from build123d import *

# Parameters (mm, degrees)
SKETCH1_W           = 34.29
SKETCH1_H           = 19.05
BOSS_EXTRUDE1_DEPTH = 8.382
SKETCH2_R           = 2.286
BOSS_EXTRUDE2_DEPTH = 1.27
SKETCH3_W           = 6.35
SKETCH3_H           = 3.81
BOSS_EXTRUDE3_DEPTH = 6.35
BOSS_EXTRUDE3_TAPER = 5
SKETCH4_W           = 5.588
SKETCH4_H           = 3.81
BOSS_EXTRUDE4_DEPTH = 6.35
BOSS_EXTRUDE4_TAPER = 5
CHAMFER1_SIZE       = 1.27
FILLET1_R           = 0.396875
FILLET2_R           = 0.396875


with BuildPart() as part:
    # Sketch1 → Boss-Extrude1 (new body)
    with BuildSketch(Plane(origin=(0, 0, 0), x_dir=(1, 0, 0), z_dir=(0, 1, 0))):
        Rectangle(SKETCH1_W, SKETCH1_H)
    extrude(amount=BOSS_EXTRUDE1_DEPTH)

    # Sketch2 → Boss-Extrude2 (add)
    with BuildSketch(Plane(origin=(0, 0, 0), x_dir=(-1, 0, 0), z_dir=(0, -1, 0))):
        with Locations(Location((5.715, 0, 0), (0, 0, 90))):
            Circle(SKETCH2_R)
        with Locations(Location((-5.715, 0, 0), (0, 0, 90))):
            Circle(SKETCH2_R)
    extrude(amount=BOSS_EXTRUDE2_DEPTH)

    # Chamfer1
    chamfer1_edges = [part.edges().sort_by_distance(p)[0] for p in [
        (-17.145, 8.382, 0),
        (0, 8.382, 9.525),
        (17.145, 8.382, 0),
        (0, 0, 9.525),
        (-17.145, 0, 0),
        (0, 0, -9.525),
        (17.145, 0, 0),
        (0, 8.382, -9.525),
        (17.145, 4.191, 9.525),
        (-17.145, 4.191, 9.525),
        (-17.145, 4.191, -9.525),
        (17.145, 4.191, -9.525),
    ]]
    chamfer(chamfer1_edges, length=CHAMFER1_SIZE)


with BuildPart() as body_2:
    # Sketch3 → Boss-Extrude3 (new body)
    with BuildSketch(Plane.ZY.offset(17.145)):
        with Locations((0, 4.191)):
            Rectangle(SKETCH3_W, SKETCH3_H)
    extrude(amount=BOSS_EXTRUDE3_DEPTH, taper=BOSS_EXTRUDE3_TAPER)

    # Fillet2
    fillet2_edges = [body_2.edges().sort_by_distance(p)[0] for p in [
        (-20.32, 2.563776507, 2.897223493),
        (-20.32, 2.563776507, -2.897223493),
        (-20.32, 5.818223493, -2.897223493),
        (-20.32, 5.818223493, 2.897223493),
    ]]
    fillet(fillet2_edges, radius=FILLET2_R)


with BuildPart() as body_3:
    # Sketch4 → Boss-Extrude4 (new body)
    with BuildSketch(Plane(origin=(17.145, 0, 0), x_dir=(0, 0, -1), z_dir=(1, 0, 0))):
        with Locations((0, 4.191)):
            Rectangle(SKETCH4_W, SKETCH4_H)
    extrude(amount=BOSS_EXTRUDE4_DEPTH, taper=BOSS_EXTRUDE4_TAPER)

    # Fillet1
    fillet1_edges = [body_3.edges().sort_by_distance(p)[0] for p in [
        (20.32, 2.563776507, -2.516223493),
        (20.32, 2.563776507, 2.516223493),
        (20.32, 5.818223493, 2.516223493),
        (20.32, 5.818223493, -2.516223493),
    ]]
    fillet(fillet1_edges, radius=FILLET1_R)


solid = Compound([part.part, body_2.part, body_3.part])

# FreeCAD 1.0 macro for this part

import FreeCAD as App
import Part
import Sketcher

V = App.Vector
Q = App.Units.Quantity


def edges_at(feature, points):
    """Names of the edges that pass closest to the given points."""
    edges = feature.Shape.Edges
    near = lambda p: min(range(len(edges)), key=lambda i: edges[i].distToShape(Part.Vertex(*p))[0])
    return sorted({f"Edge{near(p) + 1}" for p in points})


def add_polygon(sketch, points):
    """Adds a closed chain of lines whose ends are joined by coincident constraints."""
    first, n = sketch.GeometryCount, len(points)
    for a, b in zip(points, points[1:] + points[:1]):
        sketch.addGeometry(Part.LineSegment(App.Vector(*a, 0), App.Vector(*b, 0)), False)
    for i in range(n):
        sketch.addConstraint(Sketcher.Constraint("Coincident", first + i, 2, first + (i + 1) % n, 1))

doc = App.newDocument("Part")
params = doc.addObject("Spreadsheet::Sheet", "Params")
for row, (alias, value) in enumerate([
    ("sketch1_width", "1.35 in"),
    ("sketch1_height", "0.75 in"),
    ("pad1_length", "0.33 in"),
    ("sketch2_diameter", "0.18 in"),
    ("pad2_length", "0.05 in"),
    ("chamfer_size", "0.05 in"),
    ("sketch3_width", "0.15 in"),
    ("sketch3_height", "0.25 in"),
    ("pad3_length", "0.25 in"),
    ("pad3_taper", "-5 deg"),
    ("fillet_radius", "0.015625 in"),
    ("sketch4_width", "0.15 in"),
    ("sketch4_height", "0.22 in"),
    ("pad4_length", "0.25 in"),
    ("pad4_taper", "-5 deg"),
    ("fillet2_radius", "0.015625 in"),
], start=1):
    params.set(f"A{row}", alias)
    params.set(f"B{row}", "=" + value)
    params.setAlias(f"B{row}", alias)

body = doc.addObject("PartDesign::Body", "Body")

# Sketch on XZ plane
sketch1 = doc.addObject("Sketcher::SketchObject", "Sketch")
body.addObject(sketch1)
sketch1.AttachmentSupport = (doc.XZ_Plane, [""])
sketch1.MapMode = "FlatFace"
add_polygon(sketch1, [(-17.145, -9.525), (-17.145, 9.525), (17.145, 9.525), (17.145, -9.525)])  # lines 0-3
sketch1.addConstraint(Sketcher.Constraint("Vertical", 0))
sketch1.addConstraint(Sketcher.Constraint("Horizontal", 1))
sketch1.addConstraint(Sketcher.Constraint("Vertical", 2))
sketch1.addConstraint(Sketcher.Constraint("Horizontal", 3))
sketch1.addConstraint(Sketcher.Constraint("Symmetric", 0, 2, 2, 2, -1, 1))
sketch1.addConstraint(Sketcher.Constraint("DistanceX", 1, 1, 1, 2, Q("1.35 in")))
sketch1.addConstraint(Sketcher.Constraint("DistanceY", 0, 1, 0, 2, Q("0.75 in")))
sketch1.setExpression("Constraints[9]", "Params.sketch1_width")
sketch1.setExpression("Constraints[10]", "Params.sketch1_height")
pad1 = doc.addObject("PartDesign::Pad", "Pad")
body.addObject(pad1)
pad1.Profile = sketch1
pad1.setExpression("Length", "Params.pad1_length")
pad1.Reversed = True

# Sketch on XZ plane
sketch2 = doc.addObject("Sketcher::SketchObject", "Sketch001")
body.addObject(sketch2)
sketch2.AttachmentSupport = (doc.XZ_Plane, [""])
sketch2.MapMode = "FlatFace"
sketch2.addGeometry(Part.Circle(V(-5.715, 0, 0), V(0, 0, 1), 2.286), False)
sketch2.addGeometry(Part.Circle(V(5.715, 0, 0), V(0, 0, 1), 2.286), False)
sketch2.addConstraint(Sketcher.Constraint("Equal", 0, 1))
sketch2.addConstraint(Sketcher.Constraint("Symmetric", 0, 3, 1, 3, -1, 1))
sketch2.addConstraint(Sketcher.Constraint("PointOnObject", 0, 3, -1))
sketch2.addConstraint(Sketcher.Constraint("Diameter", 0, Q("0.18 in")))
sketch2.addConstraint(Sketcher.Constraint("DistanceX", 0, 3, 1, 3, Q("0.45 in")))
sketch2.setExpression("Constraints[3]", "Params.sketch2_diameter")
pad2 = doc.addObject("PartDesign::Pad", "Pad001")
body.addObject(pad2)
pad2.Profile = sketch2
pad2.setExpression("Length", "Params.pad2_length")
doc.recompute()

chamfer = doc.addObject("PartDesign::Chamfer", "Chamfer")
body.addObject(chamfer)
chamfer.Base = (pad2, edges_at(pad2, [
    (-17.145, 8.382, 0),
    (0, 8.382, 9.525),
    (17.145, 8.382, 0),
    (0, 0, 9.525),
    (-17.145, 0, 0),
    (0, 0, -9.525),
    (17.145, 0, 0),
    (0, 8.382, -9.525),
    (17.145, 4.191, 9.525),
    (-17.145, 4.191, 9.525),
    (-17.145, 4.191, -9.525),
    (17.145, 4.191, -9.525),
]))
chamfer.setExpression("Size", "Params.chamfer_size")
body2 = doc.addObject("PartDesign::Body", "Body001")

# Sketch on YZ plane
sketch3 = doc.addObject("Sketcher::SketchObject", "Sketch002")
body2.addObject(sketch3)
sketch3.AttachmentSupport = (doc.getObject("YZ_Plane001"), [""])
sketch3.MapMode = "FlatFace"
sketch3.AttachmentOffset = App.Placement(V(0, 0, -0.675 * 25.4), App.Rotation())
add_polygon(sketch3, [(6.096, -3.175), (2.286, -3.175), (2.286, 3.175), (6.096, 3.175)])  # lines 0-3
sketch3.addConstraint(Sketcher.Constraint("Horizontal", 0))
sketch3.addConstraint(Sketcher.Constraint("Vertical", 1))
sketch3.addConstraint(Sketcher.Constraint("Horizontal", 2))
sketch3.addConstraint(Sketcher.Constraint("Vertical", 3))
sketch3.addConstraint(Sketcher.Constraint("DistanceX", 0, 2, 0, 1, Q("0.15 in")))
sketch3.addConstraint(Sketcher.Constraint("DistanceY", 1, 1, 1, 2, Q("0.25 in")))
sketch3.addConstraint(Sketcher.Constraint("DistanceX", -1, 1, 0, 2, Q("0.09 in")))
sketch3.addConstraint(Sketcher.Constraint("DistanceY", 0, 2, -1, 1, Q("0.125 in")))
sketch3.setExpression("Constraints[8]", "Params.sketch3_width")
sketch3.setExpression("Constraints[9]", "Params.sketch3_height")
pad3 = doc.addObject("PartDesign::Pad", "Pad002")
body2.addObject(pad3)
pad3.Profile = sketch3
pad3.setExpression("Length", "Params.pad3_length")
pad3.Reversed = True
pad3.setExpression("TaperAngle", "Params.pad3_taper")
doc.recompute()

fillet = doc.addObject("PartDesign::Fillet", "Fillet")
body2.addObject(fillet)
fillet.Base = (pad3, edges_at(pad3, [
    (-20.32, 2.564, 2.897),
    (-20.32, 2.564, -2.897),
    (-20.32, 5.818, -2.897),
    (-20.32, 5.818, 2.897),
]))
fillet.setExpression("Radius", "Params.fillet_radius")
body3 = doc.addObject("PartDesign::Body", "Body002")

# Sketch on YZ plane
sketch4 = doc.addObject("Sketcher::SketchObject", "Sketch003")
body3.addObject(sketch4)
sketch4.AttachmentSupport = (doc.getObject("YZ_Plane002"), [""])
sketch4.MapMode = "FlatFace"
sketch4.AttachmentOffset = App.Placement(V(0, 0, 0.675 * 25.4), App.Rotation())
add_polygon(sketch4, [(6.096, 2.794), (2.286, 2.794), (2.286, -2.794), (6.096, -2.794)])  # lines 0-3
sketch4.addConstraint(Sketcher.Constraint("Horizontal", 0))
sketch4.addConstraint(Sketcher.Constraint("Vertical", 1))
sketch4.addConstraint(Sketcher.Constraint("Horizontal", 2))
sketch4.addConstraint(Sketcher.Constraint("Vertical", 3))
sketch4.addConstraint(Sketcher.Constraint("DistanceX", 0, 2, 0, 1, Q("0.15 in")))
sketch4.addConstraint(Sketcher.Constraint("DistanceY", 1, 2, 1, 1, Q("0.22 in")))
sketch4.addConstraint(Sketcher.Constraint("DistanceX", -1, 1, 0, 2, Q("0.09 in")))
sketch4.addConstraint(Sketcher.Constraint("DistanceY", -1, 1, 0, 2, Q("0.11 in")))
sketch4.setExpression("Constraints[8]", "Params.sketch4_width")
sketch4.setExpression("Constraints[9]", "Params.sketch4_height")
pad4 = doc.addObject("PartDesign::Pad", "Pad003")
body3.addObject(pad4)
pad4.Profile = sketch4
pad4.setExpression("Length", "Params.pad4_length")
pad4.setExpression("TaperAngle", "Params.pad4_taper")
doc.recompute()

fillet2 = doc.addObject("PartDesign::Fillet", "Fillet001")
body3.addObject(fillet2)
fillet2.Base = (pad4, edges_at(pad4, [
    (20.32, 2.564, -2.516),
    (20.32, 2.564, 2.516),
    (20.32, 5.818, 2.516),
    (20.32, 5.818, -2.516),
]))
fillet2.setExpression("Radius", "Params.fillet2_radius")

doc.recompute()
